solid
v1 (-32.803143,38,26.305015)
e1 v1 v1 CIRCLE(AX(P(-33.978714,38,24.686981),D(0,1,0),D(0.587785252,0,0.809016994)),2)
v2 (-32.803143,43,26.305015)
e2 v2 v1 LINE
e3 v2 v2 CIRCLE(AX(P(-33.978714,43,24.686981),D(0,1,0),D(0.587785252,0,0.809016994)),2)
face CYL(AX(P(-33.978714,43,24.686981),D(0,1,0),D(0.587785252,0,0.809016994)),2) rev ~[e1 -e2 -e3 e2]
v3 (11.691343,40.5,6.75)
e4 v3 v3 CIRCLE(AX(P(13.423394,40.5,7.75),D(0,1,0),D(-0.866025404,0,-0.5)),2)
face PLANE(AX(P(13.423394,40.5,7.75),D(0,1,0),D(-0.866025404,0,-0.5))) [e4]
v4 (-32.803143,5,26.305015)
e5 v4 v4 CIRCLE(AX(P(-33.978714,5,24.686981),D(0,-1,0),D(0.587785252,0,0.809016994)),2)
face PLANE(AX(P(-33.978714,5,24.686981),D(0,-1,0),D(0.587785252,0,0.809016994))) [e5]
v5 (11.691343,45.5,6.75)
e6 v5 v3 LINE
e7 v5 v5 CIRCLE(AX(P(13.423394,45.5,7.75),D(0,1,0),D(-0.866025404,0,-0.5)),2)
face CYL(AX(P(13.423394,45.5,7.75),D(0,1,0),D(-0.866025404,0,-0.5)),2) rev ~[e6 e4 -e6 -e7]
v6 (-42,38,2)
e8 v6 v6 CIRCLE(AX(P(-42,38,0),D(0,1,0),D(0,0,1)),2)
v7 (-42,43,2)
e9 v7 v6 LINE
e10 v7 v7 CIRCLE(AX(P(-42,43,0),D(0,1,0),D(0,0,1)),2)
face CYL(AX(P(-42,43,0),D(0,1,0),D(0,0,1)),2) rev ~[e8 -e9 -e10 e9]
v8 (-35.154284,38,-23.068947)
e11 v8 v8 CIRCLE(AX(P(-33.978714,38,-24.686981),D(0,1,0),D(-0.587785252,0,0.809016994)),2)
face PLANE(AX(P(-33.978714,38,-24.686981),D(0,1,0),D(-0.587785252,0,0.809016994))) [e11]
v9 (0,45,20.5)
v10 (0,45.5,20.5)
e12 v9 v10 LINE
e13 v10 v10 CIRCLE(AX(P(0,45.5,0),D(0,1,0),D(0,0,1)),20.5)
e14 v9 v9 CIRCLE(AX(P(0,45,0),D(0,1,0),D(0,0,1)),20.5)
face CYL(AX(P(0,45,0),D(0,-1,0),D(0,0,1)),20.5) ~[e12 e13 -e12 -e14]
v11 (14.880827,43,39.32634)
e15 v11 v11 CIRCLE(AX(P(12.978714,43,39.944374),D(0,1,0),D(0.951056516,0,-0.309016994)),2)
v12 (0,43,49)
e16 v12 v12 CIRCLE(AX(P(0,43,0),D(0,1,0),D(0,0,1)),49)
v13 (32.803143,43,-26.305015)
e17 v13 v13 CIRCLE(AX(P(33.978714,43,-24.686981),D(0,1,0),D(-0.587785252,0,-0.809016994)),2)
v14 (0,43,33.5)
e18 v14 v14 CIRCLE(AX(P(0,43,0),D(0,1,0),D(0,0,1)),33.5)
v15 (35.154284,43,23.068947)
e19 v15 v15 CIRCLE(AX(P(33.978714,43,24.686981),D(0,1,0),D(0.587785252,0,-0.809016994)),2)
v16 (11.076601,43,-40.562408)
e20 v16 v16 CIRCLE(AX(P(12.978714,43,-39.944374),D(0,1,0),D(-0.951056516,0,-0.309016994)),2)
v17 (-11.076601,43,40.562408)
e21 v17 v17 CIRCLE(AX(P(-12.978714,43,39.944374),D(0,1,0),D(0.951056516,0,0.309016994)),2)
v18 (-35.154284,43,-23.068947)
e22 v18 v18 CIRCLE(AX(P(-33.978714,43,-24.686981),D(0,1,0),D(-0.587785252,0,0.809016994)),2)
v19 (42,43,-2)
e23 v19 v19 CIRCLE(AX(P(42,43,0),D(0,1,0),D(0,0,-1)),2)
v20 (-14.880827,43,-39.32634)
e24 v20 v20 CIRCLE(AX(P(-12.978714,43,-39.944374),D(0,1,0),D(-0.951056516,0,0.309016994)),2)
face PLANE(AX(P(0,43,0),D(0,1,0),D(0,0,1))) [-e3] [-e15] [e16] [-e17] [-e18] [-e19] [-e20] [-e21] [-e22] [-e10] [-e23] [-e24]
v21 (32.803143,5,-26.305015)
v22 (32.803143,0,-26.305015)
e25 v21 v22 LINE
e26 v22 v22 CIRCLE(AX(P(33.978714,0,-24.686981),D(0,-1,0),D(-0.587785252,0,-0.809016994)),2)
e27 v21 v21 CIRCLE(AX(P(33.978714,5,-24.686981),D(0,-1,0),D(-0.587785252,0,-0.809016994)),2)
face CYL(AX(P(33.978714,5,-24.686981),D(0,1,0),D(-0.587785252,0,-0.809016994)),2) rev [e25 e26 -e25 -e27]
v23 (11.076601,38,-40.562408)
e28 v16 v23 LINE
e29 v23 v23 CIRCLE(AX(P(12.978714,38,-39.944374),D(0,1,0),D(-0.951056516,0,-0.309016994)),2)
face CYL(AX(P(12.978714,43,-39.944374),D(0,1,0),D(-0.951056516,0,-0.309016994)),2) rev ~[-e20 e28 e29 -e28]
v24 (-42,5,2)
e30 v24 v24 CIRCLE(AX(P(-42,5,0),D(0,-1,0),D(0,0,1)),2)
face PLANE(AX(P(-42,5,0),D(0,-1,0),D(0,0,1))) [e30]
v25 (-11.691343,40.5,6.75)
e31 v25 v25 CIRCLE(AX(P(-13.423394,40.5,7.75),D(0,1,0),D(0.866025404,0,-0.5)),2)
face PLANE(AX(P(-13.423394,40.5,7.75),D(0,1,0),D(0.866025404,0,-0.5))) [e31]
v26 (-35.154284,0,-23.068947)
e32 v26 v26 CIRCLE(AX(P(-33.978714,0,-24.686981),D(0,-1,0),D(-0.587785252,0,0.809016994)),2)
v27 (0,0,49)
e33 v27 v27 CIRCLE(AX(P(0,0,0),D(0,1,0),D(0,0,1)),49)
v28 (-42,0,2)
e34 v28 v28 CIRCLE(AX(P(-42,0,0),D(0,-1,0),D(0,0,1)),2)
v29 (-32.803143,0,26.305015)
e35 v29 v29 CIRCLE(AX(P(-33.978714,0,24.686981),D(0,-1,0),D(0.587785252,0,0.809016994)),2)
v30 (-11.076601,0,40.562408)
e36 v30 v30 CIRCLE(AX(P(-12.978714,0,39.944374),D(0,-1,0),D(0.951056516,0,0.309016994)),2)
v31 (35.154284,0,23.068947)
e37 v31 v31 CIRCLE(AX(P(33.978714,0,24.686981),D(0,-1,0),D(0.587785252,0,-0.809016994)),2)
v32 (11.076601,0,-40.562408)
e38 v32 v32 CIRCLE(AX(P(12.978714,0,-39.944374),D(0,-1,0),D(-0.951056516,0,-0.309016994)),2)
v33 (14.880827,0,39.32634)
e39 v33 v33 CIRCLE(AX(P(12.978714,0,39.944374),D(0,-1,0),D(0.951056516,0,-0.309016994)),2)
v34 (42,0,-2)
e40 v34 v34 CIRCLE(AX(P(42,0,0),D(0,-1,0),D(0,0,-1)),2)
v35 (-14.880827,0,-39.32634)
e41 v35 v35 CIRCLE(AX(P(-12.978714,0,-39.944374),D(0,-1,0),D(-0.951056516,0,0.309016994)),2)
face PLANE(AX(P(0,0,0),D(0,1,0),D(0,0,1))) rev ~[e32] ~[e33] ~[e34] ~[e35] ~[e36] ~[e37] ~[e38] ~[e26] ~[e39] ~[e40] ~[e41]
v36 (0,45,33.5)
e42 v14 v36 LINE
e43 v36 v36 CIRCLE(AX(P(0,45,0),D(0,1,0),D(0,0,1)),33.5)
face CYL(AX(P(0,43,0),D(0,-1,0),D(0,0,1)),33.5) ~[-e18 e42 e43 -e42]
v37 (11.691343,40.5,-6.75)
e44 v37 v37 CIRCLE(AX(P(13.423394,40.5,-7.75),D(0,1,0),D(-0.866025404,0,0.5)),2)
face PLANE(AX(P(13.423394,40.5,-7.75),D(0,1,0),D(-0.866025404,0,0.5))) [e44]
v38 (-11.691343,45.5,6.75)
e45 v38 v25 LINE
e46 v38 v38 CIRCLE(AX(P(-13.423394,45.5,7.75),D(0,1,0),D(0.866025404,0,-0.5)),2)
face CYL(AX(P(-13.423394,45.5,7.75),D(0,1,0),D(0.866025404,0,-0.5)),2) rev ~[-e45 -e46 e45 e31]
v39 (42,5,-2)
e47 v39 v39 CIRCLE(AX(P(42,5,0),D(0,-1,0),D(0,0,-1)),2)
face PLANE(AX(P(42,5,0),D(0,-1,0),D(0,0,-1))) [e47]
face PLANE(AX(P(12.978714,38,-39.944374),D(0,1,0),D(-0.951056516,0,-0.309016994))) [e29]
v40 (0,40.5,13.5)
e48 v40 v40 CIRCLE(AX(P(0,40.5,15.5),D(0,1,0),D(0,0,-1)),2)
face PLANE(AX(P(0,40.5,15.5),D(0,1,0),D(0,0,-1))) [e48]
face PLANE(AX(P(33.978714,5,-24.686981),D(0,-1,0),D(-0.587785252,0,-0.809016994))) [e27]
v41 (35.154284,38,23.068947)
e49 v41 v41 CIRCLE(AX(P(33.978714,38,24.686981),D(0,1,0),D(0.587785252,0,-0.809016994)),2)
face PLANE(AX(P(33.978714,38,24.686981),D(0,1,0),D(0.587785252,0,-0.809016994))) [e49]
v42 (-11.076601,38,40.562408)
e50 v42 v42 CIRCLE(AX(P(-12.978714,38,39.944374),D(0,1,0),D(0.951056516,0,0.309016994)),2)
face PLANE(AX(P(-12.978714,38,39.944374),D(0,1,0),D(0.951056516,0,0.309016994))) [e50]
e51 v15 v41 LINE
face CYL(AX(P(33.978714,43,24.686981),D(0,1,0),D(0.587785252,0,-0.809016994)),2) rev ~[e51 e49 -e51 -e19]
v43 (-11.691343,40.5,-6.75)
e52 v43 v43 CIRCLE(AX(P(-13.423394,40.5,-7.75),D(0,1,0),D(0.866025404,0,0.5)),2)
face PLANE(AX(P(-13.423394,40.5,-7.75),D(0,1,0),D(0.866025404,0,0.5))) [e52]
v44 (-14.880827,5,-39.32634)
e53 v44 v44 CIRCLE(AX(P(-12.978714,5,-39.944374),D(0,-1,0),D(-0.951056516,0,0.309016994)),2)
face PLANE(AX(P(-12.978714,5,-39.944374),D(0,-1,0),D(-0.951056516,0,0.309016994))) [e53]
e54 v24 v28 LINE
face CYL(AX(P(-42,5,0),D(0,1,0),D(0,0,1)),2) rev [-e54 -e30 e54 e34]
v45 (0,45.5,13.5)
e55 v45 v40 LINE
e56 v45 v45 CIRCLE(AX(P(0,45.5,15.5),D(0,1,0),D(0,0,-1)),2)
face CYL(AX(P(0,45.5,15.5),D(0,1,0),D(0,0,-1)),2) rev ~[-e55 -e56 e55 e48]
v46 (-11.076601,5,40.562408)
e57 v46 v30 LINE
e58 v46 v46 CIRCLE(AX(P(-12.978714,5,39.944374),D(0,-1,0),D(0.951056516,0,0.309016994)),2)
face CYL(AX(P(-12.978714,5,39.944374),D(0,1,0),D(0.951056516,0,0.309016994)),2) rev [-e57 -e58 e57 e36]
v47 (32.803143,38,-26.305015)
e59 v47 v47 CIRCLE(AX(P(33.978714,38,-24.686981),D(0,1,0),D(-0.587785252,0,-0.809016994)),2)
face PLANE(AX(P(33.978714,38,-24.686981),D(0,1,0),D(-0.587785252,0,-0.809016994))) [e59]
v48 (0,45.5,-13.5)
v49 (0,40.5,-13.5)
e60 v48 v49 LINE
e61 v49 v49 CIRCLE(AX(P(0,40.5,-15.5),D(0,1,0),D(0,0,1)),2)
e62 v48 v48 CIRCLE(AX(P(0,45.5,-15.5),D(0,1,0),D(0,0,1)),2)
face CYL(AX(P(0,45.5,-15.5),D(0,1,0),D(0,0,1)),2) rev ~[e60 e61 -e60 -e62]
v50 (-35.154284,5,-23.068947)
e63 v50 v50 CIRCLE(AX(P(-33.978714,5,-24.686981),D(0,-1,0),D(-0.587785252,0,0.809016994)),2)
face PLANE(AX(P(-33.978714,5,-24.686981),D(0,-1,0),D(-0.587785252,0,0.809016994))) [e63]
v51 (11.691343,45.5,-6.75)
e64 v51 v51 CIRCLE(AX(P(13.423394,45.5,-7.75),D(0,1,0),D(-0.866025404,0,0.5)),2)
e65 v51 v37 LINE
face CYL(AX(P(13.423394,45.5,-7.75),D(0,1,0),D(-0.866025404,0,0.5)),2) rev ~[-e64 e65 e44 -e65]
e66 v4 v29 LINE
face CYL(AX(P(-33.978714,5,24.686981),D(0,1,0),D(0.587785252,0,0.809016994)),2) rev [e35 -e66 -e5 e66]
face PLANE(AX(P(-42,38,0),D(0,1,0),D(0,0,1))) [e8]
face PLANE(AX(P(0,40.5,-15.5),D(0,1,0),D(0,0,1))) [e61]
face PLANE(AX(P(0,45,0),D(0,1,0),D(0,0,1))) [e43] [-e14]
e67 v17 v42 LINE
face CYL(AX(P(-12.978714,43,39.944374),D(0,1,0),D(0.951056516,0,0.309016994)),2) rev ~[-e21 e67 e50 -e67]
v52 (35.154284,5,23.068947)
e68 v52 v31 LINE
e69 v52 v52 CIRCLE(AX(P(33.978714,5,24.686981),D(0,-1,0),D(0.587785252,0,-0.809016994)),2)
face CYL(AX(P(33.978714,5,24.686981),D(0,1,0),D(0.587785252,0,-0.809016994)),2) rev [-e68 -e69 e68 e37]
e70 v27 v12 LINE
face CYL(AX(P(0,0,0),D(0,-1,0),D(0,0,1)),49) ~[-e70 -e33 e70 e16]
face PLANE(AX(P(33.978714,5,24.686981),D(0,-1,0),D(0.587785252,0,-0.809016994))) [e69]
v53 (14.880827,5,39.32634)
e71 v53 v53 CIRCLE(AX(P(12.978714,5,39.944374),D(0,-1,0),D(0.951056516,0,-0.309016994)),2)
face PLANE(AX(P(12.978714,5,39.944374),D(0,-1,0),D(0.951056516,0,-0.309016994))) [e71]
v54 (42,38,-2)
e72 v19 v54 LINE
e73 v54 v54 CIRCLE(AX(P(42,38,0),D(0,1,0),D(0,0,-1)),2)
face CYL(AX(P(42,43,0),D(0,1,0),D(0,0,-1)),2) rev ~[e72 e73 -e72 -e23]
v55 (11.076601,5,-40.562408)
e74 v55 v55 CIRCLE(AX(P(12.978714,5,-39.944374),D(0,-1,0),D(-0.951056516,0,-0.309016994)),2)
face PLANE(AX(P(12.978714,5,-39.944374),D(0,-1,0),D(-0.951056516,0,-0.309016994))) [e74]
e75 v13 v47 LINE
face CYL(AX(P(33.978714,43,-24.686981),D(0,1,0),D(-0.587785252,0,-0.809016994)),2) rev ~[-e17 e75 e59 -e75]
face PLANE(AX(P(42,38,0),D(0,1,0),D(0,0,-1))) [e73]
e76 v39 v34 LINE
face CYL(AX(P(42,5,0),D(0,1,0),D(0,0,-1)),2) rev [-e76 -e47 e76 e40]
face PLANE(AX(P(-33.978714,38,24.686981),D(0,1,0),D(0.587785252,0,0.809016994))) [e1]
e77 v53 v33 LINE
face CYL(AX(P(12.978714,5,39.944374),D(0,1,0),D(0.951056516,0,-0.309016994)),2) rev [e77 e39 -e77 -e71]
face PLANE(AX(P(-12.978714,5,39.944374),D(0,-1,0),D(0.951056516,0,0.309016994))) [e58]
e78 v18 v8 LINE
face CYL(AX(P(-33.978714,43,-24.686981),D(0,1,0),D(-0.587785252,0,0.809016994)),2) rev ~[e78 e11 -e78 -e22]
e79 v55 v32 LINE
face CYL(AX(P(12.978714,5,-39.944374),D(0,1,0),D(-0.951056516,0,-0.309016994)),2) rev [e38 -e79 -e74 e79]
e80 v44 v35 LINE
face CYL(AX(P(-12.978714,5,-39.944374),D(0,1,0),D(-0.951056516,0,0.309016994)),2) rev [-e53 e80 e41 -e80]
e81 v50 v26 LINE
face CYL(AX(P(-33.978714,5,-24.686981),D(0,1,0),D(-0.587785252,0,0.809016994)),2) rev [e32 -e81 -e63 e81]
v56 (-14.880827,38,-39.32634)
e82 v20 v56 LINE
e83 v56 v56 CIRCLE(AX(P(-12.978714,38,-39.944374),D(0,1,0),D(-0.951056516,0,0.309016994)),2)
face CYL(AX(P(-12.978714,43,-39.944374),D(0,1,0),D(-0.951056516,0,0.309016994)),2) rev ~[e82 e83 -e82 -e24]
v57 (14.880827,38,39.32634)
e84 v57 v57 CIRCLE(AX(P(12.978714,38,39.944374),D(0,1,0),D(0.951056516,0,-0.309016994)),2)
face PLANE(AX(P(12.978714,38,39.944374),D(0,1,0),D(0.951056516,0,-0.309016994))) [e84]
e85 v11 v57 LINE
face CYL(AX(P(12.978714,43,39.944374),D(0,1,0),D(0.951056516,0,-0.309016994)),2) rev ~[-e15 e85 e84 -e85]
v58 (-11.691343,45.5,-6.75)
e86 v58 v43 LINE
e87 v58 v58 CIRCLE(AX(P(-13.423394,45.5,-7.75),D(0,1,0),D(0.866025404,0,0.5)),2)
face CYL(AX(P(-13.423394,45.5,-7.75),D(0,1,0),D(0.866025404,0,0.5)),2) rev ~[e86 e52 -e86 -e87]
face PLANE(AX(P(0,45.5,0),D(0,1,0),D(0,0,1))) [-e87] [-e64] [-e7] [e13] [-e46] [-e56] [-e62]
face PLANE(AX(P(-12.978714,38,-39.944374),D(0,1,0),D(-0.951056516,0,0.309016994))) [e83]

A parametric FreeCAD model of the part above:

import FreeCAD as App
import Part
import Sketcher
from FreeCAD import Vector
Q = App.Units.Quantity

doc = App.newDocument("Part")
body = doc.addObject("PartDesign::Body", "Body")

# Sketch on XZ plane
sketch1 = body.newObject("Sketcher::SketchObject", "Sketch")
sketch1.AttachmentSupport = (doc.getObject("XZ_Plane"), [""])
sketch1.MapMode = "FlatFace"
sketch1.addGeometry(Part.Circle(Vector(0, 0, 0), Vector(0, 0, 1), 49), False)
sketch1.addConstraint(Sketcher.Constraint("Coincident", 0, 3, -1, 1))
sketch1.addConstraint(Sketcher.Constraint("Diameter", 0, Q("98 mm")))
pad1 = body.newObject("PartDesign::Pad", "Pad")
pad1.Profile = sketch1
pad1.Length = 43
pad1.Reversed = True

# Sketch on XZ plane
sketch2 = body.newObject("Sketcher::SketchObject", "Sketch001")
sketch2.AttachmentSupport = (doc.getObject("XZ_Plane"), [""])
sketch2.MapMode = "FlatFace"
sketch2.AttachmentOffset = App.Placement(Vector(0, 0, -43), App.Rotation())
sketch2.addGeometry(Part.Circle(Vector(0, 0, 0), Vector(0, 0, 1), 34), False)
sketch2.addConstraint(Sketcher.Constraint("Coincident", 0, 3, -1, 1))
sketch2.addConstraint(Sketcher.Constraint("Diameter", 0, Q("67 mm")))
pad2 = body.newObject("PartDesign::Pad", "Pad001")
pad2.Profile = sketch2
pad2.Length = 2
pad2.Reversed = True

# Sketch on XZ plane
sketch3 = body.newObject("Sketcher::SketchObject", "Sketch002")
sketch3.AttachmentSupport = (doc.getObject("XZ_Plane"), [""])
sketch3.MapMode = "FlatFace"
sketch3.AttachmentOffset = App.Placement(Vector(0, 0, -45), App.Rotation())
sketch3.addGeometry(Part.Circle(Vector(0, 0, 0), Vector(0, 0, 1), 20), False)
sketch3.addConstraint(Sketcher.Constraint("Coincident", 0, 3, -1, 1))
sketch3.addConstraint(Sketcher.Constraint("Diameter", 0, Q("41 mm")))
pad3 = body.newObject("PartDesign::Pad", "Pad002")
pad3.Profile = sketch3
pad3.Length = 0.5
pad3.Reversed = True

# Sketch on XZ plane
sketch4 = body.newObject("Sketcher::SketchObject", "Sketch003")
sketch4.AttachmentSupport = (doc.getObject("XZ_Plane"), [""])
sketch4.MapMode = "FlatFace"
sketch4.AttachmentOffset = App.Placement(Vector(0, 0, -45.5), App.Rotation())
sketch4.addGeometry(Part.Circle(Vector(0, -15.5, 0), Vector(0, 0, 1), 2), False)
sketch4.addConstraint(Sketcher.Constraint("PointOnObject", 0, 3, -2))
sketch4.addConstraint(Sketcher.Constraint("Diameter", 0, Q("4 mm")))
sketch4.addConstraint(Sketcher.Constraint("DistanceY", 0, 3, -1, 1, Q("15.5 mm")))
pocket1 = body.newObject("PartDesign::Pocket", "Pocket")
pocket1.Profile = sketch4
pocket1.Length = 5
pocket1.Reversed = True
doc.recompute()

polarpattern = body.newObject("PartDesign::PolarPattern", "PolarPattern")
polarpattern.Originals = [pocket1]
polarpattern.Axis = (doc.getObject("Y_Axis"), [""])
polarpattern.Angle = 360
polarpattern.Occurrences = 6
body.Tip = polarpattern

# Sketch on XZ plane
sketch5 = body.newObject("Sketcher::SketchObject", "Sketch004")
sketch5.AttachmentSupport = (doc.getObject("XZ_Plane"), [""])
sketch5.MapMode = "FlatFace"
sketch5.AttachmentOffset = App.Placement(Vector(0, 0, -43), App.Rotation())
sketch5.addGeometry(Part.Circle(Vector(-42, 0, 0), Vector(0, 0, 1), 2), False)
sketch5.addConstraint(Sketcher.Constraint("PointOnObject", 0, 3, -1))
sketch5.addConstraint(Sketcher.Constraint("Diameter", 0, Q("4 mm")))
sketch5.addConstraint(Sketcher.Constraint("DistanceX", 0, 3, -1, 1, Q("42 mm")))
pocket2 = body.newObject("PartDesign::Pocket", "Pocket001")
pocket2.Profile = sketch5
pocket2.Length = 5
pocket2.Reversed = True
doc.recompute()

polarpattern2 = body.newObject("PartDesign::PolarPattern", "PolarPattern001")
polarpattern2.Originals = [pocket2]
polarpattern2.Axis = (doc.getObject("Y_Axis"), [""])
polarpattern2.Angle = 360
polarpattern2.Occurrences = 10
body.Tip = polarpattern2

# Sketch on XZ plane
sketch6 = body.newObject("Sketcher::SketchObject", "Sketch005")
sketch6.AttachmentSupport = (doc.getObject("XZ_Plane"), [""])
sketch6.MapMode = "FlatFace"
sketch6.AttachmentOffset = App.Placement(Vector(0, 0, -5), App.Rotation())
sketch6.addGeometry(Part.Circle(Vector(42, 0, 0), Vector(0, 0, 1), 2), False)
sketch6.addConstraint(Sketcher.Constraint("PointOnObject", 0, 3, -1))
sketch6.addConstraint(Sketcher.Constraint("Diameter", 0, Q("4 mm")))
sketch6.addConstraint(Sketcher.Constraint("DistanceX", -1, 1, 0, 3, Q("42 mm")))
pocket3 = body.newObject("PartDesign::Pocket", "Pocket002")
pocket3.Profile = sketch6
pocket3.Length = 5
pocket3.Reversed = True
doc.recompute()

polarpattern3 = body.newObject("PartDesign::PolarPattern", "PolarPattern002")
polarpattern3.Originals = [pocket3]
polarpattern3.Axis = (doc.getObject("Y_Axis"), [""])
polarpattern3.Angle = 360
polarpattern3.Occurrences = 10
body.Tip = polarpattern3

doc.recompute()
